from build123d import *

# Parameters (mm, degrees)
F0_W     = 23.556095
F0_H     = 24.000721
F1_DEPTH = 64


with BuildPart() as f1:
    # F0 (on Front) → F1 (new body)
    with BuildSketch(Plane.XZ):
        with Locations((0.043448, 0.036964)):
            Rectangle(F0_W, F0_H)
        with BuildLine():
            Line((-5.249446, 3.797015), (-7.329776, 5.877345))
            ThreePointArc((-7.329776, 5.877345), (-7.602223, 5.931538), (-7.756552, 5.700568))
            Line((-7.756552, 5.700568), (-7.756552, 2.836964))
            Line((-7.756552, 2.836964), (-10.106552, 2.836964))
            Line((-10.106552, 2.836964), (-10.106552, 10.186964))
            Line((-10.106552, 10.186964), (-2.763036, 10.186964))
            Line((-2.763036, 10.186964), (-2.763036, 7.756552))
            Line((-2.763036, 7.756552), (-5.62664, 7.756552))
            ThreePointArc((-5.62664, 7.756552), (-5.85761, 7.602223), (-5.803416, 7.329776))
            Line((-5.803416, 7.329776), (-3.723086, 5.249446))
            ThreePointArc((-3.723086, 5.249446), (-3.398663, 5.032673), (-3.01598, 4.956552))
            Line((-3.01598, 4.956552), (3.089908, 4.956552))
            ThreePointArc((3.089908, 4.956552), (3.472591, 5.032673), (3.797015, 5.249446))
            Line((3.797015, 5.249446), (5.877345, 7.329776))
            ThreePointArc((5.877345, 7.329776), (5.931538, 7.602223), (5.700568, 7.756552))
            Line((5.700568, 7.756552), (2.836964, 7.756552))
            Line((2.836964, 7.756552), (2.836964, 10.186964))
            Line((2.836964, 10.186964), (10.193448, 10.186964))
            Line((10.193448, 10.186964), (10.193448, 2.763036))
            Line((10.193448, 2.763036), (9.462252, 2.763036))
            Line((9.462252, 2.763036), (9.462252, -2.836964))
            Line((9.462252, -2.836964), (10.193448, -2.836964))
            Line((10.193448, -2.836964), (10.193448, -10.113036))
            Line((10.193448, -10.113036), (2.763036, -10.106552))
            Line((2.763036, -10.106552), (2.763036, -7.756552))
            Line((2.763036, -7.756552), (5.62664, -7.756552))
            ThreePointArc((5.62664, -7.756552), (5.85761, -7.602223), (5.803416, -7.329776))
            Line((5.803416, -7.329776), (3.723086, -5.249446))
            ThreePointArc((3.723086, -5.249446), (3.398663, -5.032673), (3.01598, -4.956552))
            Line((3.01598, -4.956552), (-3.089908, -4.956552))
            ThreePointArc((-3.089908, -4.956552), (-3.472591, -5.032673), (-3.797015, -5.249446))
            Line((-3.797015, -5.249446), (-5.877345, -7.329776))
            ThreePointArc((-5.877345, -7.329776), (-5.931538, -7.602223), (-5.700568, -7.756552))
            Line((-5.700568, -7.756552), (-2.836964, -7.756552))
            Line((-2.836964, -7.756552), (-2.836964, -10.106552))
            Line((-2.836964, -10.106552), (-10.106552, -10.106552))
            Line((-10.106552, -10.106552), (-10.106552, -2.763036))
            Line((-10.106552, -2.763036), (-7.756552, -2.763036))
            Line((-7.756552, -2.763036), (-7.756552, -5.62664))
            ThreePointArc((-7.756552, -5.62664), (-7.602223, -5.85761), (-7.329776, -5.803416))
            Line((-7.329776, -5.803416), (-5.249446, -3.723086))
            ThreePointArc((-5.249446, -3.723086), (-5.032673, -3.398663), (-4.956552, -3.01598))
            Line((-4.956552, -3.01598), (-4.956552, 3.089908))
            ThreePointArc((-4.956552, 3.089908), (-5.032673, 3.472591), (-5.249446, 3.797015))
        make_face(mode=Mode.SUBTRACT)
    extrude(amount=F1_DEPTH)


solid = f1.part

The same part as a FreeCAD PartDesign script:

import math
import FreeCAD as App
import Part
import Sketcher

V = App.Vector
Q = App.Units.Quantity


def add_polygon(sketch, points):
    """Adds a closed chain of lines whose ends are joined by coincident constraints."""
    first, n = sketch.GeometryCount, len(points)
    for a, b in zip(points, points[1:] + points[:1]):
        sketch.addGeometry(Part.LineSegment(App.Vector(*a, 0), App.Vector(*b, 0)), False)
    for i in range(n):
        sketch.addConstraint(Sketcher.Constraint("Coincident", first + i, 2, first + (i + 1) % n, 1))

doc = App.newDocument("Part")
params = doc.addObject("Spreadsheet::Sheet", "Params")
for row, (alias, value) in enumerate([
    ("sketch1_radius", "1.000001 mm"),
    ("sketch1_radius2", "0.25 mm"),
    ("sketch1_height", "5.6 mm"),
    ("sketch1_width", "2.35 mm"),
    ("sketch1_height2", "7.35 mm"),
    ("pad1_length", "64 mm"),
], start=1):
    params.set(f"A{row}", alias)
    params.set(f"B{row}", "=" + value)
    params.setAlias(f"B{row}", alias)

body = doc.addObject("PartDesign::Body", "Body")

sketch1 = body.newObject("Sketcher::SketchObject", "Sketch")
sketch1.AttachmentSupport = (doc.getObject("XZ_Plane"), [""])
sketch1.MapMode = "FlatFace"
add_polygon(sketch1, [(-11.734599, 12.037325), (-11.734599, -11.963396), (11.821495, -11.963396), (11.821495, 12.037325)])
sketch1.addGeometry(Part.ArcOfCircle(Part.Circle(V(-5.956557, 3.089905, 0), V(0, 0, 1), 1.000005), math.radians(0.00016), math.radians(44.999936)), False)
sketch1.addGeometry(Part.LineSegment(V(-5.249446, 3.797015, 0), V(-7.329776, 5.877345, 0)), False)
sketch1.addGeometry(Part.ArcOfCircle(Part.Circle(V(-7.506552, 5.700568, 0), V(0, 0, 1), 0.25), math.radians(45.000046), math.radians(180.00009)), False)
sketch1.addGeometry(Part.LineSegment(V(-7.756552, 5.700568, 0), V(-7.756552, 2.836964, 0)), False)
sketch1.addGeometry(Part.LineSegment(V(-7.756552, 2.836964, 0), V(-10.106552, 2.836964, 0)), False)
sketch1.addGeometry(Part.LineSegment(V(-10.106552, 2.836964, 0), V(-10.106552, 10.186964, 0)), False)
sketch1.addGeometry(Part.LineSegment(V(-10.106552, 10.186964, 0), V(-2.763036, 10.186964, 0)), False)
sketch1.addGeometry(Part.LineSegment(V(-2.763036, 10.186964, 0), V(-2.763036, 7.756552, 0)), False)
sketch1.addGeometry(Part.LineSegment(V(-2.763036, 7.756552, 0), V(-5.62664, 7.756552, 0)), False)
sketch1.addGeometry(Part.ArcOfCircle(Part.Circle(V(-5.626641, 7.506553, 0), V(0, 0, 1), 0.249999), math.radians(89.999822), math.radians(225.000271)), False)
sketch1.addGeometry(Part.LineSegment(V(-5.803416, 7.329776, 0), V(-3.723086, 5.249446, 0)), False)
sketch1.addGeometry(Part.ArcOfCircle(Part.Circle(V(-3.015978, 5.956553, 0), V(0, 0, 1), 1.000001), math.radians(-135.000046), math.radians(-90.000107)), False)
sketch1.addGeometry(Part.LineSegment(V(-3.01598, 4.956552, 0), V(3.089908, 4.956552, 0)), False)
sketch1.addGeometry(Part.ArcOfCircle(Part.Circle(V(3.089905, 5.956557, 0), V(0, 0, 1), 1.000005), math.radians(-89.99984), math.radians(-45.000064)), False)
sketch1.addGeometry(Part.LineSegment(V(3.797015, 5.249446, 0), V(5.877345, 7.329776, 0)), False)
sketch1.addGeometry(Part.ArcOfCircle(Part.Circle(V(5.700568, 7.506552, 0), V(0, 0, 1), 0.25), math.radians(-44.999954), math.radians(90.00009)), False)
sketch1.addGeometry(Part.LineSegment(V(5.700568, 7.756552, 0), V(2.836964, 7.756552, 0)), False)
sketch1.addGeometry(Part.LineSegment(V(2.836964, 7.756552, 0), V(2.836964, 10.186964, 0)), False)
sketch1.addGeometry(Part.LineSegment(V(2.836964, 10.186964, 0), V(10.193448, 10.186964, 0)), False)
sketch1.addGeometry(Part.LineSegment(V(10.193448, 10.186964, 0), V(10.193448, 2.763036, 0)), False)
sketch1.addGeometry(Part.LineSegment(V(10.193448, 2.763036, 0), V(9.462252, 2.763036, 0)), False)
sketch1.addGeometry(Part.LineSegment(V(9.462252, 2.763036, 0), V(9.462252, -2.836964, 0)), False)
sketch1.addGeometry(Part.LineSegment(V(9.462252, -2.836964, 0), V(10.193448, -2.836964, 0)), False)
sketch1.addGeometry(Part.LineSegment(V(10.193448, -2.836964, 0), V(10.193448, -10.113036, 0)), False)
sketch1.addGeometry(Part.LineSegment(V(10.193448, -10.113036, 0), V(2.763036, -10.106552, 0)), False)
sketch1.addGeometry(Part.LineSegment(V(2.763036, -10.106552, 0), V(2.763036, -7.756552, 0)), False)
sketch1.addGeometry(Part.LineSegment(V(2.763036, -7.756552, 0), V(5.62664, -7.756552, 0)), False)
sketch1.addGeometry(Part.ArcOfCircle(Part.Circle(V(5.626641, -7.506553, 0), V(0, 0, 1), 0.249999), math.radians(-90.000178), math.radians(45.000271)), False)
sketch1.addGeometry(Part.LineSegment(V(5.803416, -7.329776, 0), V(3.723086, -5.249446, 0)), False)
sketch1.addGeometry(Part.ArcOfCircle(Part.Circle(V(3.015978, -5.956553, 0), V(0, 0, 1), 1.000001), math.radians(44.999954), math.radians(89.999893)), False)
sketch1.addGeometry(Part.LineSegment(V(3.01598, -4.956552, 0), V(-3.089908, -4.956552, 0)), False)
sketch1.addGeometry(Part.ArcOfCircle(Part.Circle(V(-3.089905, -5.956557, 0), V(0, 0, 1), 1.000005), math.radians(90.00016), math.radians(134.999936)), False)
sketch1.addGeometry(Part.LineSegment(V(-3.797015, -5.249446, 0), V(-5.877345, -7.329776, 0)), False)
sketch1.addGeometry(Part.ArcOfCircle(Part.Circle(V(-5.700568, -7.506552, 0), V(0, 0, 1), 0.25), math.radians(135.000046), math.radians(270.00009)), False)
sketch1.addGeometry(Part.LineSegment(V(-5.700568, -7.756552, 0), V(-2.836964, -7.756552, 0)), False)
sketch1.addGeometry(Part.LineSegment(V(-2.836964, -7.756552, 0), V(-2.836964, -10.106552, 0)), False)
sketch1.addGeometry(Part.LineSegment(V(-2.836964, -10.106552, 0), V(-10.106552, -10.106552, 0)), False)
sketch1.addGeometry(Part.LineSegment(V(-10.106552, -10.106552, 0), V(-10.106552, -2.763036, 0)), False)
sketch1.addGeometry(Part.LineSegment(V(-10.106552, -2.763036, 0), V(-7.756552, -2.763036, 0)), False)
sketch1.addGeometry(Part.LineSegment(V(-7.756552, -2.763036, 0), V(-7.756552, -5.62664, 0)), False)
sketch1.addGeometry(Part.ArcOfCircle(Part.Circle(V(-7.506553, -5.626641, 0), V(0, 0, 1), 0.249999), math.radians(179.999822), math.radians(315.000271)), False)
sketch1.addGeometry(Part.LineSegment(V(-7.329776, -5.803416, 0), V(-5.249446, -3.723086, 0)), False)
sketch1.addGeometry(Part.ArcOfCircle(Part.Circle(V(-5.956553, -3.015978, 0), V(0, 0, 1), 1.000001), math.radians(-45.000046), math.radians(-0.000107)), False)
sketch1.addGeometry(Part.LineSegment(V(-4.956552, -3.01598, 0), V(-4.956552, 3.089908, 0)), False)
sketch1.addConstraint([
    Sketcher.Constraint("Tangent", 4, 2, 5, 1),
    Sketcher.Constraint("Tangent", 5, 2, 6, 1),
    Sketcher.Constraint("Tangent", 6, 2, 7, 1),
    Sketcher.Constraint("Coincident", 7, 2, 8, 1),
    Sketcher.Constraint("Coincident", 8, 2, 9, 1),
    Sketcher.Constraint("Coincident", 9, 2, 10, 1),
    Sketcher.Constraint("Coincident", 10, 2, 11, 1),
    Sketcher.Constraint("Coincident", 11, 2, 12, 1),
    Sketcher.Constraint("Coincident", 12, 2, 13, 1),
    Sketcher.Constraint("Coincident", 13, 2, 14, 1),
    Sketcher.Constraint("Tangent", 14, 2, 15, 1),
    Sketcher.Constraint("Tangent", 15, 2, 16, 1),
    Sketcher.Constraint("Coincident", 16, 2, 17, 1),
    Sketcher.Constraint("Tangent", 17, 2, 18, 1),
    Sketcher.Constraint("Tangent", 18, 2, 19, 1),
    Sketcher.Constraint("Tangent", 19, 2, 20, 1),
    Sketcher.Constraint("Coincident", 20, 2, 21, 1),
    Sketcher.Constraint("Coincident", 21, 2, 22, 1),
    Sketcher.Constraint("Coincident", 22, 2, 23, 1),
    Sketcher.Constraint("Coincident", 23, 2, 24, 1),
    Sketcher.Constraint("Coincident", 24, 2, 25, 1),
    Sketcher.Constraint("Coincident", 25, 2, 26, 1),
    Sketcher.Constraint("Coincident", 26, 2, 27, 1),
    Sketcher.Constraint("Coincident", 27, 2, 28, 1),
    Sketcher.Constraint("Coincident", 28, 2, 29, 1),
    Sketcher.Constraint("Coincident", 29, 2, 30, 1),
    Sketcher.Constraint("Coincident", 30, 2, 31, 1),
    Sketcher.Constraint("Coincident", 31, 2, 32, 1),
    Sketcher.Constraint("Tangent", 32, 2, 33, 1),
    Sketcher.Constraint("Tangent", 33, 2, 34, 1),
    Sketcher.Constraint("Coincident", 34, 2, 35, 1),
    Sketcher.Constraint("Tangent", 35, 2, 36, 1),
    Sketcher.Constraint("Tangent", 36, 2, 37, 1),
    Sketcher.Constraint("Tangent", 37, 2, 38, 1),
    Sketcher.Constraint("Coincident", 38, 2, 39, 1),
    Sketcher.Constraint("Coincident", 39, 2, 40, 1),
    Sketcher.Constraint("Coincident", 40, 2, 41, 1),
    Sketcher.Constraint("Coincident", 41, 2, 42, 1),
    Sketcher.Constraint("Coincident", 42, 2, 43, 1),
    Sketcher.Constraint("Coincident", 43, 2, 44, 1),
    Sketcher.Constraint("Coincident", 44, 2, 45, 1),
    Sketcher.Constraint("Tangent", 45, 2, 46, 1),
    Sketcher.Constraint("Tangent", 46, 2, 47, 1),
    Sketcher.Constraint("Coincident", 47, 2, 4, 1),
    Sketcher.Constraint("Vertical", 0),
    Sketcher.Constraint("Horizontal", 1),
    Sketcher.Constraint("Vertical", 2),
    Sketcher.Constraint("Horizontal", 3),
    Sketcher.Constraint("Vertical", 7),
    Sketcher.Constraint("Horizontal", 8),
    Sketcher.Constraint("Vertical", 9),
    Sketcher.Constraint("Horizontal", 10),
    Sketcher.Constraint("Vertical", 11),
    Sketcher.Constraint("Horizontal", 12),
    Sketcher.Constraint("Horizontal", 16),
    Sketcher.Constraint("Horizontal", 20),
    Sketcher.Constraint("Vertical", 21),
    Sketcher.Constraint("Horizontal", 22),
    Sketcher.Constraint("Vertical", 23),
    Sketcher.Constraint("Horizontal", 24),
    Sketcher.Constraint("Vertical", 25),
    Sketcher.Constraint("Horizontal", 26),
    Sketcher.Constraint("Vertical", 27),
    Sketcher.Constraint("Vertical", 29),
    Sketcher.Constraint("Horizontal", 30),
    Sketcher.Constraint("Horizontal", 34),
    Sketcher.Constraint("Horizontal", 38),
    Sketcher.Constraint("Vertical", 39),
    Sketcher.Constraint("Horizontal", 40),
    Sketcher.Constraint("Vertical", 41),
    Sketcher.Constraint("Horizontal", 42),
    Sketcher.Constraint("Vertical", 43),
    Sketcher.Constraint("Vertical", 47),
    Sketcher.Constraint("Equal", 6, 13),
    Sketcher.Constraint("Equal", 4, 17),
    Sketcher.Constraint("Equal", 13, 19),
    Sketcher.Constraint("Equal", 19, 31),
    Sketcher.Constraint("Equal", 15, 33),
    Sketcher.Constraint("Equal", 17, 35),
    Sketcher.Constraint("Equal", 31, 37),
    Sketcher.Constraint("Equal", 37, 44),
    Sketcher.Constraint("Equal", 33, 46),
    Sketcher.Constraint("Symmetric", 13, 3, 31, 3, -1, 1),
    Sketcher.Constraint("Symmetric", 15, 3, 33, 3, -1, 1),
    Sketcher.Constraint("Symmetric", 19, 3, 37, 3, -1, 1),
    Sketcher.Constraint("Parallel", 5, 14),
    Sketcher.Constraint("Perpendicular", 14, 18),
    Sketcher.Constraint("Perpendicular", 32, 36),
    Sketcher.Constraint("Parallel", 36, 45),
    Sketcher.Constraint("Horizontal", 13, 3, 19, 3),
    Sketcher.Constraint("Horizontal", 14, 2, 17, 2),
    Sketcher.Constraint("Horizontal", 13, 2, 18, 2),
    Sketcher.Constraint("Horizontal", 10, 2, 21, 2),
    Sketcher.Constraint("Horizontal", 31, 2, 36, 2),
    Sketcher.Constraint("Horizontal", 28, 2, 39, 2),
    Sketcher.Constraint("Horizontal", 44, 3, 43, 2),
    Sketcher.Constraint("Vertical", 6, 3, 44, 3),
    Sketcher.Constraint("Vertical", 13, 3, 12, 2),
    Sketcher.Constraint("Vertical", 23, 2, 26, 2),
    Sketcher.Constraint("Vertical", 31, 3, 30, 2),
    Sketcher.Constraint("Vertical", 9, 2, 40, 2),
    Sketcher.Constraint("Vertical", 5, 2, 44, 2),
    Sketcher.Constraint("Equal", 12, 20),
    Sketcher.Constraint("Equal", 20, 30),
    Sketcher.Constraint("Equal", 16, 34),
    Sketcher.Constraint("Equal", 30, 38),
    Sketcher.Constraint("Equal", 38, 7),
    Sketcher.Constraint("Equal", 42, 29),
    Sketcher.Constraint("Equal", 10, 41),
    Sketcher.Constraint("Equal", 7, 43),
    Sketcher.Constraint("Equal", 34, 47),
    Sketcher.Constraint("Equal", 5, 14),
    Sketcher.Constraint("Equal", 14, 18),
    Sketcher.Constraint("Radius", 15, 1.000001),
    Sketcher.Constraint("Radius", 6, 0.25),
    Sketcher.Constraint("DistanceY", 25, 2, 25, 1, 5.6),
    Sketcher.Constraint("DistanceX", 8, 2, 8, 1, 2.35),
    Sketcher.Constraint("DistanceY", 9, 1, 9, 2, 7.35),
    Sketcher.Constraint("Angle", 28, Q("179.950002 deg")),
    Sketcher.Constraint("DistanceY", 15, 3, 11, 2, 1.799999),
    Sketcher.Constraint("DistanceY", 41, 2, 8, 2, 5.6),
    Sketcher.Constraint("DistanceX", 16, 1, 16, 2, 6.105888),
    Sketcher.Constraint("DistanceX", 40, 2, 40, 1, 7.269588),
    Sketcher.Constraint("DistanceY", 0, 2, 0, 1, 24.000721),
    Sketcher.Constraint("DistanceY", 11, 2, 11, 1, 2.430412),
    Sketcher.Constraint("DistanceY", 27, 2, 27, 1, 7.276072),
    Sketcher.Constraint("DistanceX", 0, 2, -1, 1, 11.734599),
    Sketcher.Constraint("DistanceX", 4, 3, 31, 3, 11.583198),
    Sketcher.Constraint("DistanceX", 35, 3, 1, 2, 14.911401),
    Sketcher.Constraint("DistanceX", 1, 1, 1, 2, 23.556095),
    Sketcher.Constraint("DistanceX", 10, 1, 10, 2, 7.343516),
    Sketcher.Constraint("DistanceX", 22, 1, 22, 2, 7.356484),
    Sketcher.Constraint("DistanceX", 24, 2, 24, 1, 0.731196),
    Sketcher.Constraint("DistanceY", 0, 2, 35, 3, 6.006839),
])
sketch1.setExpression("Constraints[117]", "Params.sketch1_radius")
sketch1.setExpression("Constraints[118]", "Params.sketch1_radius2")
sketch1.setExpression("Constraints[119]", "Params.sketch1_height")
sketch1.setExpression("Constraints[120]", "Params.sketch1_width")
sketch1.setExpression("Constraints[121]", "Params.sketch1_height2")
pad1 = body.newObject("PartDesign::Pad", "Pad")
pad1.Profile = sketch1
pad1.setExpression("Length", "Params.pad1_length")

doc.recompute()
